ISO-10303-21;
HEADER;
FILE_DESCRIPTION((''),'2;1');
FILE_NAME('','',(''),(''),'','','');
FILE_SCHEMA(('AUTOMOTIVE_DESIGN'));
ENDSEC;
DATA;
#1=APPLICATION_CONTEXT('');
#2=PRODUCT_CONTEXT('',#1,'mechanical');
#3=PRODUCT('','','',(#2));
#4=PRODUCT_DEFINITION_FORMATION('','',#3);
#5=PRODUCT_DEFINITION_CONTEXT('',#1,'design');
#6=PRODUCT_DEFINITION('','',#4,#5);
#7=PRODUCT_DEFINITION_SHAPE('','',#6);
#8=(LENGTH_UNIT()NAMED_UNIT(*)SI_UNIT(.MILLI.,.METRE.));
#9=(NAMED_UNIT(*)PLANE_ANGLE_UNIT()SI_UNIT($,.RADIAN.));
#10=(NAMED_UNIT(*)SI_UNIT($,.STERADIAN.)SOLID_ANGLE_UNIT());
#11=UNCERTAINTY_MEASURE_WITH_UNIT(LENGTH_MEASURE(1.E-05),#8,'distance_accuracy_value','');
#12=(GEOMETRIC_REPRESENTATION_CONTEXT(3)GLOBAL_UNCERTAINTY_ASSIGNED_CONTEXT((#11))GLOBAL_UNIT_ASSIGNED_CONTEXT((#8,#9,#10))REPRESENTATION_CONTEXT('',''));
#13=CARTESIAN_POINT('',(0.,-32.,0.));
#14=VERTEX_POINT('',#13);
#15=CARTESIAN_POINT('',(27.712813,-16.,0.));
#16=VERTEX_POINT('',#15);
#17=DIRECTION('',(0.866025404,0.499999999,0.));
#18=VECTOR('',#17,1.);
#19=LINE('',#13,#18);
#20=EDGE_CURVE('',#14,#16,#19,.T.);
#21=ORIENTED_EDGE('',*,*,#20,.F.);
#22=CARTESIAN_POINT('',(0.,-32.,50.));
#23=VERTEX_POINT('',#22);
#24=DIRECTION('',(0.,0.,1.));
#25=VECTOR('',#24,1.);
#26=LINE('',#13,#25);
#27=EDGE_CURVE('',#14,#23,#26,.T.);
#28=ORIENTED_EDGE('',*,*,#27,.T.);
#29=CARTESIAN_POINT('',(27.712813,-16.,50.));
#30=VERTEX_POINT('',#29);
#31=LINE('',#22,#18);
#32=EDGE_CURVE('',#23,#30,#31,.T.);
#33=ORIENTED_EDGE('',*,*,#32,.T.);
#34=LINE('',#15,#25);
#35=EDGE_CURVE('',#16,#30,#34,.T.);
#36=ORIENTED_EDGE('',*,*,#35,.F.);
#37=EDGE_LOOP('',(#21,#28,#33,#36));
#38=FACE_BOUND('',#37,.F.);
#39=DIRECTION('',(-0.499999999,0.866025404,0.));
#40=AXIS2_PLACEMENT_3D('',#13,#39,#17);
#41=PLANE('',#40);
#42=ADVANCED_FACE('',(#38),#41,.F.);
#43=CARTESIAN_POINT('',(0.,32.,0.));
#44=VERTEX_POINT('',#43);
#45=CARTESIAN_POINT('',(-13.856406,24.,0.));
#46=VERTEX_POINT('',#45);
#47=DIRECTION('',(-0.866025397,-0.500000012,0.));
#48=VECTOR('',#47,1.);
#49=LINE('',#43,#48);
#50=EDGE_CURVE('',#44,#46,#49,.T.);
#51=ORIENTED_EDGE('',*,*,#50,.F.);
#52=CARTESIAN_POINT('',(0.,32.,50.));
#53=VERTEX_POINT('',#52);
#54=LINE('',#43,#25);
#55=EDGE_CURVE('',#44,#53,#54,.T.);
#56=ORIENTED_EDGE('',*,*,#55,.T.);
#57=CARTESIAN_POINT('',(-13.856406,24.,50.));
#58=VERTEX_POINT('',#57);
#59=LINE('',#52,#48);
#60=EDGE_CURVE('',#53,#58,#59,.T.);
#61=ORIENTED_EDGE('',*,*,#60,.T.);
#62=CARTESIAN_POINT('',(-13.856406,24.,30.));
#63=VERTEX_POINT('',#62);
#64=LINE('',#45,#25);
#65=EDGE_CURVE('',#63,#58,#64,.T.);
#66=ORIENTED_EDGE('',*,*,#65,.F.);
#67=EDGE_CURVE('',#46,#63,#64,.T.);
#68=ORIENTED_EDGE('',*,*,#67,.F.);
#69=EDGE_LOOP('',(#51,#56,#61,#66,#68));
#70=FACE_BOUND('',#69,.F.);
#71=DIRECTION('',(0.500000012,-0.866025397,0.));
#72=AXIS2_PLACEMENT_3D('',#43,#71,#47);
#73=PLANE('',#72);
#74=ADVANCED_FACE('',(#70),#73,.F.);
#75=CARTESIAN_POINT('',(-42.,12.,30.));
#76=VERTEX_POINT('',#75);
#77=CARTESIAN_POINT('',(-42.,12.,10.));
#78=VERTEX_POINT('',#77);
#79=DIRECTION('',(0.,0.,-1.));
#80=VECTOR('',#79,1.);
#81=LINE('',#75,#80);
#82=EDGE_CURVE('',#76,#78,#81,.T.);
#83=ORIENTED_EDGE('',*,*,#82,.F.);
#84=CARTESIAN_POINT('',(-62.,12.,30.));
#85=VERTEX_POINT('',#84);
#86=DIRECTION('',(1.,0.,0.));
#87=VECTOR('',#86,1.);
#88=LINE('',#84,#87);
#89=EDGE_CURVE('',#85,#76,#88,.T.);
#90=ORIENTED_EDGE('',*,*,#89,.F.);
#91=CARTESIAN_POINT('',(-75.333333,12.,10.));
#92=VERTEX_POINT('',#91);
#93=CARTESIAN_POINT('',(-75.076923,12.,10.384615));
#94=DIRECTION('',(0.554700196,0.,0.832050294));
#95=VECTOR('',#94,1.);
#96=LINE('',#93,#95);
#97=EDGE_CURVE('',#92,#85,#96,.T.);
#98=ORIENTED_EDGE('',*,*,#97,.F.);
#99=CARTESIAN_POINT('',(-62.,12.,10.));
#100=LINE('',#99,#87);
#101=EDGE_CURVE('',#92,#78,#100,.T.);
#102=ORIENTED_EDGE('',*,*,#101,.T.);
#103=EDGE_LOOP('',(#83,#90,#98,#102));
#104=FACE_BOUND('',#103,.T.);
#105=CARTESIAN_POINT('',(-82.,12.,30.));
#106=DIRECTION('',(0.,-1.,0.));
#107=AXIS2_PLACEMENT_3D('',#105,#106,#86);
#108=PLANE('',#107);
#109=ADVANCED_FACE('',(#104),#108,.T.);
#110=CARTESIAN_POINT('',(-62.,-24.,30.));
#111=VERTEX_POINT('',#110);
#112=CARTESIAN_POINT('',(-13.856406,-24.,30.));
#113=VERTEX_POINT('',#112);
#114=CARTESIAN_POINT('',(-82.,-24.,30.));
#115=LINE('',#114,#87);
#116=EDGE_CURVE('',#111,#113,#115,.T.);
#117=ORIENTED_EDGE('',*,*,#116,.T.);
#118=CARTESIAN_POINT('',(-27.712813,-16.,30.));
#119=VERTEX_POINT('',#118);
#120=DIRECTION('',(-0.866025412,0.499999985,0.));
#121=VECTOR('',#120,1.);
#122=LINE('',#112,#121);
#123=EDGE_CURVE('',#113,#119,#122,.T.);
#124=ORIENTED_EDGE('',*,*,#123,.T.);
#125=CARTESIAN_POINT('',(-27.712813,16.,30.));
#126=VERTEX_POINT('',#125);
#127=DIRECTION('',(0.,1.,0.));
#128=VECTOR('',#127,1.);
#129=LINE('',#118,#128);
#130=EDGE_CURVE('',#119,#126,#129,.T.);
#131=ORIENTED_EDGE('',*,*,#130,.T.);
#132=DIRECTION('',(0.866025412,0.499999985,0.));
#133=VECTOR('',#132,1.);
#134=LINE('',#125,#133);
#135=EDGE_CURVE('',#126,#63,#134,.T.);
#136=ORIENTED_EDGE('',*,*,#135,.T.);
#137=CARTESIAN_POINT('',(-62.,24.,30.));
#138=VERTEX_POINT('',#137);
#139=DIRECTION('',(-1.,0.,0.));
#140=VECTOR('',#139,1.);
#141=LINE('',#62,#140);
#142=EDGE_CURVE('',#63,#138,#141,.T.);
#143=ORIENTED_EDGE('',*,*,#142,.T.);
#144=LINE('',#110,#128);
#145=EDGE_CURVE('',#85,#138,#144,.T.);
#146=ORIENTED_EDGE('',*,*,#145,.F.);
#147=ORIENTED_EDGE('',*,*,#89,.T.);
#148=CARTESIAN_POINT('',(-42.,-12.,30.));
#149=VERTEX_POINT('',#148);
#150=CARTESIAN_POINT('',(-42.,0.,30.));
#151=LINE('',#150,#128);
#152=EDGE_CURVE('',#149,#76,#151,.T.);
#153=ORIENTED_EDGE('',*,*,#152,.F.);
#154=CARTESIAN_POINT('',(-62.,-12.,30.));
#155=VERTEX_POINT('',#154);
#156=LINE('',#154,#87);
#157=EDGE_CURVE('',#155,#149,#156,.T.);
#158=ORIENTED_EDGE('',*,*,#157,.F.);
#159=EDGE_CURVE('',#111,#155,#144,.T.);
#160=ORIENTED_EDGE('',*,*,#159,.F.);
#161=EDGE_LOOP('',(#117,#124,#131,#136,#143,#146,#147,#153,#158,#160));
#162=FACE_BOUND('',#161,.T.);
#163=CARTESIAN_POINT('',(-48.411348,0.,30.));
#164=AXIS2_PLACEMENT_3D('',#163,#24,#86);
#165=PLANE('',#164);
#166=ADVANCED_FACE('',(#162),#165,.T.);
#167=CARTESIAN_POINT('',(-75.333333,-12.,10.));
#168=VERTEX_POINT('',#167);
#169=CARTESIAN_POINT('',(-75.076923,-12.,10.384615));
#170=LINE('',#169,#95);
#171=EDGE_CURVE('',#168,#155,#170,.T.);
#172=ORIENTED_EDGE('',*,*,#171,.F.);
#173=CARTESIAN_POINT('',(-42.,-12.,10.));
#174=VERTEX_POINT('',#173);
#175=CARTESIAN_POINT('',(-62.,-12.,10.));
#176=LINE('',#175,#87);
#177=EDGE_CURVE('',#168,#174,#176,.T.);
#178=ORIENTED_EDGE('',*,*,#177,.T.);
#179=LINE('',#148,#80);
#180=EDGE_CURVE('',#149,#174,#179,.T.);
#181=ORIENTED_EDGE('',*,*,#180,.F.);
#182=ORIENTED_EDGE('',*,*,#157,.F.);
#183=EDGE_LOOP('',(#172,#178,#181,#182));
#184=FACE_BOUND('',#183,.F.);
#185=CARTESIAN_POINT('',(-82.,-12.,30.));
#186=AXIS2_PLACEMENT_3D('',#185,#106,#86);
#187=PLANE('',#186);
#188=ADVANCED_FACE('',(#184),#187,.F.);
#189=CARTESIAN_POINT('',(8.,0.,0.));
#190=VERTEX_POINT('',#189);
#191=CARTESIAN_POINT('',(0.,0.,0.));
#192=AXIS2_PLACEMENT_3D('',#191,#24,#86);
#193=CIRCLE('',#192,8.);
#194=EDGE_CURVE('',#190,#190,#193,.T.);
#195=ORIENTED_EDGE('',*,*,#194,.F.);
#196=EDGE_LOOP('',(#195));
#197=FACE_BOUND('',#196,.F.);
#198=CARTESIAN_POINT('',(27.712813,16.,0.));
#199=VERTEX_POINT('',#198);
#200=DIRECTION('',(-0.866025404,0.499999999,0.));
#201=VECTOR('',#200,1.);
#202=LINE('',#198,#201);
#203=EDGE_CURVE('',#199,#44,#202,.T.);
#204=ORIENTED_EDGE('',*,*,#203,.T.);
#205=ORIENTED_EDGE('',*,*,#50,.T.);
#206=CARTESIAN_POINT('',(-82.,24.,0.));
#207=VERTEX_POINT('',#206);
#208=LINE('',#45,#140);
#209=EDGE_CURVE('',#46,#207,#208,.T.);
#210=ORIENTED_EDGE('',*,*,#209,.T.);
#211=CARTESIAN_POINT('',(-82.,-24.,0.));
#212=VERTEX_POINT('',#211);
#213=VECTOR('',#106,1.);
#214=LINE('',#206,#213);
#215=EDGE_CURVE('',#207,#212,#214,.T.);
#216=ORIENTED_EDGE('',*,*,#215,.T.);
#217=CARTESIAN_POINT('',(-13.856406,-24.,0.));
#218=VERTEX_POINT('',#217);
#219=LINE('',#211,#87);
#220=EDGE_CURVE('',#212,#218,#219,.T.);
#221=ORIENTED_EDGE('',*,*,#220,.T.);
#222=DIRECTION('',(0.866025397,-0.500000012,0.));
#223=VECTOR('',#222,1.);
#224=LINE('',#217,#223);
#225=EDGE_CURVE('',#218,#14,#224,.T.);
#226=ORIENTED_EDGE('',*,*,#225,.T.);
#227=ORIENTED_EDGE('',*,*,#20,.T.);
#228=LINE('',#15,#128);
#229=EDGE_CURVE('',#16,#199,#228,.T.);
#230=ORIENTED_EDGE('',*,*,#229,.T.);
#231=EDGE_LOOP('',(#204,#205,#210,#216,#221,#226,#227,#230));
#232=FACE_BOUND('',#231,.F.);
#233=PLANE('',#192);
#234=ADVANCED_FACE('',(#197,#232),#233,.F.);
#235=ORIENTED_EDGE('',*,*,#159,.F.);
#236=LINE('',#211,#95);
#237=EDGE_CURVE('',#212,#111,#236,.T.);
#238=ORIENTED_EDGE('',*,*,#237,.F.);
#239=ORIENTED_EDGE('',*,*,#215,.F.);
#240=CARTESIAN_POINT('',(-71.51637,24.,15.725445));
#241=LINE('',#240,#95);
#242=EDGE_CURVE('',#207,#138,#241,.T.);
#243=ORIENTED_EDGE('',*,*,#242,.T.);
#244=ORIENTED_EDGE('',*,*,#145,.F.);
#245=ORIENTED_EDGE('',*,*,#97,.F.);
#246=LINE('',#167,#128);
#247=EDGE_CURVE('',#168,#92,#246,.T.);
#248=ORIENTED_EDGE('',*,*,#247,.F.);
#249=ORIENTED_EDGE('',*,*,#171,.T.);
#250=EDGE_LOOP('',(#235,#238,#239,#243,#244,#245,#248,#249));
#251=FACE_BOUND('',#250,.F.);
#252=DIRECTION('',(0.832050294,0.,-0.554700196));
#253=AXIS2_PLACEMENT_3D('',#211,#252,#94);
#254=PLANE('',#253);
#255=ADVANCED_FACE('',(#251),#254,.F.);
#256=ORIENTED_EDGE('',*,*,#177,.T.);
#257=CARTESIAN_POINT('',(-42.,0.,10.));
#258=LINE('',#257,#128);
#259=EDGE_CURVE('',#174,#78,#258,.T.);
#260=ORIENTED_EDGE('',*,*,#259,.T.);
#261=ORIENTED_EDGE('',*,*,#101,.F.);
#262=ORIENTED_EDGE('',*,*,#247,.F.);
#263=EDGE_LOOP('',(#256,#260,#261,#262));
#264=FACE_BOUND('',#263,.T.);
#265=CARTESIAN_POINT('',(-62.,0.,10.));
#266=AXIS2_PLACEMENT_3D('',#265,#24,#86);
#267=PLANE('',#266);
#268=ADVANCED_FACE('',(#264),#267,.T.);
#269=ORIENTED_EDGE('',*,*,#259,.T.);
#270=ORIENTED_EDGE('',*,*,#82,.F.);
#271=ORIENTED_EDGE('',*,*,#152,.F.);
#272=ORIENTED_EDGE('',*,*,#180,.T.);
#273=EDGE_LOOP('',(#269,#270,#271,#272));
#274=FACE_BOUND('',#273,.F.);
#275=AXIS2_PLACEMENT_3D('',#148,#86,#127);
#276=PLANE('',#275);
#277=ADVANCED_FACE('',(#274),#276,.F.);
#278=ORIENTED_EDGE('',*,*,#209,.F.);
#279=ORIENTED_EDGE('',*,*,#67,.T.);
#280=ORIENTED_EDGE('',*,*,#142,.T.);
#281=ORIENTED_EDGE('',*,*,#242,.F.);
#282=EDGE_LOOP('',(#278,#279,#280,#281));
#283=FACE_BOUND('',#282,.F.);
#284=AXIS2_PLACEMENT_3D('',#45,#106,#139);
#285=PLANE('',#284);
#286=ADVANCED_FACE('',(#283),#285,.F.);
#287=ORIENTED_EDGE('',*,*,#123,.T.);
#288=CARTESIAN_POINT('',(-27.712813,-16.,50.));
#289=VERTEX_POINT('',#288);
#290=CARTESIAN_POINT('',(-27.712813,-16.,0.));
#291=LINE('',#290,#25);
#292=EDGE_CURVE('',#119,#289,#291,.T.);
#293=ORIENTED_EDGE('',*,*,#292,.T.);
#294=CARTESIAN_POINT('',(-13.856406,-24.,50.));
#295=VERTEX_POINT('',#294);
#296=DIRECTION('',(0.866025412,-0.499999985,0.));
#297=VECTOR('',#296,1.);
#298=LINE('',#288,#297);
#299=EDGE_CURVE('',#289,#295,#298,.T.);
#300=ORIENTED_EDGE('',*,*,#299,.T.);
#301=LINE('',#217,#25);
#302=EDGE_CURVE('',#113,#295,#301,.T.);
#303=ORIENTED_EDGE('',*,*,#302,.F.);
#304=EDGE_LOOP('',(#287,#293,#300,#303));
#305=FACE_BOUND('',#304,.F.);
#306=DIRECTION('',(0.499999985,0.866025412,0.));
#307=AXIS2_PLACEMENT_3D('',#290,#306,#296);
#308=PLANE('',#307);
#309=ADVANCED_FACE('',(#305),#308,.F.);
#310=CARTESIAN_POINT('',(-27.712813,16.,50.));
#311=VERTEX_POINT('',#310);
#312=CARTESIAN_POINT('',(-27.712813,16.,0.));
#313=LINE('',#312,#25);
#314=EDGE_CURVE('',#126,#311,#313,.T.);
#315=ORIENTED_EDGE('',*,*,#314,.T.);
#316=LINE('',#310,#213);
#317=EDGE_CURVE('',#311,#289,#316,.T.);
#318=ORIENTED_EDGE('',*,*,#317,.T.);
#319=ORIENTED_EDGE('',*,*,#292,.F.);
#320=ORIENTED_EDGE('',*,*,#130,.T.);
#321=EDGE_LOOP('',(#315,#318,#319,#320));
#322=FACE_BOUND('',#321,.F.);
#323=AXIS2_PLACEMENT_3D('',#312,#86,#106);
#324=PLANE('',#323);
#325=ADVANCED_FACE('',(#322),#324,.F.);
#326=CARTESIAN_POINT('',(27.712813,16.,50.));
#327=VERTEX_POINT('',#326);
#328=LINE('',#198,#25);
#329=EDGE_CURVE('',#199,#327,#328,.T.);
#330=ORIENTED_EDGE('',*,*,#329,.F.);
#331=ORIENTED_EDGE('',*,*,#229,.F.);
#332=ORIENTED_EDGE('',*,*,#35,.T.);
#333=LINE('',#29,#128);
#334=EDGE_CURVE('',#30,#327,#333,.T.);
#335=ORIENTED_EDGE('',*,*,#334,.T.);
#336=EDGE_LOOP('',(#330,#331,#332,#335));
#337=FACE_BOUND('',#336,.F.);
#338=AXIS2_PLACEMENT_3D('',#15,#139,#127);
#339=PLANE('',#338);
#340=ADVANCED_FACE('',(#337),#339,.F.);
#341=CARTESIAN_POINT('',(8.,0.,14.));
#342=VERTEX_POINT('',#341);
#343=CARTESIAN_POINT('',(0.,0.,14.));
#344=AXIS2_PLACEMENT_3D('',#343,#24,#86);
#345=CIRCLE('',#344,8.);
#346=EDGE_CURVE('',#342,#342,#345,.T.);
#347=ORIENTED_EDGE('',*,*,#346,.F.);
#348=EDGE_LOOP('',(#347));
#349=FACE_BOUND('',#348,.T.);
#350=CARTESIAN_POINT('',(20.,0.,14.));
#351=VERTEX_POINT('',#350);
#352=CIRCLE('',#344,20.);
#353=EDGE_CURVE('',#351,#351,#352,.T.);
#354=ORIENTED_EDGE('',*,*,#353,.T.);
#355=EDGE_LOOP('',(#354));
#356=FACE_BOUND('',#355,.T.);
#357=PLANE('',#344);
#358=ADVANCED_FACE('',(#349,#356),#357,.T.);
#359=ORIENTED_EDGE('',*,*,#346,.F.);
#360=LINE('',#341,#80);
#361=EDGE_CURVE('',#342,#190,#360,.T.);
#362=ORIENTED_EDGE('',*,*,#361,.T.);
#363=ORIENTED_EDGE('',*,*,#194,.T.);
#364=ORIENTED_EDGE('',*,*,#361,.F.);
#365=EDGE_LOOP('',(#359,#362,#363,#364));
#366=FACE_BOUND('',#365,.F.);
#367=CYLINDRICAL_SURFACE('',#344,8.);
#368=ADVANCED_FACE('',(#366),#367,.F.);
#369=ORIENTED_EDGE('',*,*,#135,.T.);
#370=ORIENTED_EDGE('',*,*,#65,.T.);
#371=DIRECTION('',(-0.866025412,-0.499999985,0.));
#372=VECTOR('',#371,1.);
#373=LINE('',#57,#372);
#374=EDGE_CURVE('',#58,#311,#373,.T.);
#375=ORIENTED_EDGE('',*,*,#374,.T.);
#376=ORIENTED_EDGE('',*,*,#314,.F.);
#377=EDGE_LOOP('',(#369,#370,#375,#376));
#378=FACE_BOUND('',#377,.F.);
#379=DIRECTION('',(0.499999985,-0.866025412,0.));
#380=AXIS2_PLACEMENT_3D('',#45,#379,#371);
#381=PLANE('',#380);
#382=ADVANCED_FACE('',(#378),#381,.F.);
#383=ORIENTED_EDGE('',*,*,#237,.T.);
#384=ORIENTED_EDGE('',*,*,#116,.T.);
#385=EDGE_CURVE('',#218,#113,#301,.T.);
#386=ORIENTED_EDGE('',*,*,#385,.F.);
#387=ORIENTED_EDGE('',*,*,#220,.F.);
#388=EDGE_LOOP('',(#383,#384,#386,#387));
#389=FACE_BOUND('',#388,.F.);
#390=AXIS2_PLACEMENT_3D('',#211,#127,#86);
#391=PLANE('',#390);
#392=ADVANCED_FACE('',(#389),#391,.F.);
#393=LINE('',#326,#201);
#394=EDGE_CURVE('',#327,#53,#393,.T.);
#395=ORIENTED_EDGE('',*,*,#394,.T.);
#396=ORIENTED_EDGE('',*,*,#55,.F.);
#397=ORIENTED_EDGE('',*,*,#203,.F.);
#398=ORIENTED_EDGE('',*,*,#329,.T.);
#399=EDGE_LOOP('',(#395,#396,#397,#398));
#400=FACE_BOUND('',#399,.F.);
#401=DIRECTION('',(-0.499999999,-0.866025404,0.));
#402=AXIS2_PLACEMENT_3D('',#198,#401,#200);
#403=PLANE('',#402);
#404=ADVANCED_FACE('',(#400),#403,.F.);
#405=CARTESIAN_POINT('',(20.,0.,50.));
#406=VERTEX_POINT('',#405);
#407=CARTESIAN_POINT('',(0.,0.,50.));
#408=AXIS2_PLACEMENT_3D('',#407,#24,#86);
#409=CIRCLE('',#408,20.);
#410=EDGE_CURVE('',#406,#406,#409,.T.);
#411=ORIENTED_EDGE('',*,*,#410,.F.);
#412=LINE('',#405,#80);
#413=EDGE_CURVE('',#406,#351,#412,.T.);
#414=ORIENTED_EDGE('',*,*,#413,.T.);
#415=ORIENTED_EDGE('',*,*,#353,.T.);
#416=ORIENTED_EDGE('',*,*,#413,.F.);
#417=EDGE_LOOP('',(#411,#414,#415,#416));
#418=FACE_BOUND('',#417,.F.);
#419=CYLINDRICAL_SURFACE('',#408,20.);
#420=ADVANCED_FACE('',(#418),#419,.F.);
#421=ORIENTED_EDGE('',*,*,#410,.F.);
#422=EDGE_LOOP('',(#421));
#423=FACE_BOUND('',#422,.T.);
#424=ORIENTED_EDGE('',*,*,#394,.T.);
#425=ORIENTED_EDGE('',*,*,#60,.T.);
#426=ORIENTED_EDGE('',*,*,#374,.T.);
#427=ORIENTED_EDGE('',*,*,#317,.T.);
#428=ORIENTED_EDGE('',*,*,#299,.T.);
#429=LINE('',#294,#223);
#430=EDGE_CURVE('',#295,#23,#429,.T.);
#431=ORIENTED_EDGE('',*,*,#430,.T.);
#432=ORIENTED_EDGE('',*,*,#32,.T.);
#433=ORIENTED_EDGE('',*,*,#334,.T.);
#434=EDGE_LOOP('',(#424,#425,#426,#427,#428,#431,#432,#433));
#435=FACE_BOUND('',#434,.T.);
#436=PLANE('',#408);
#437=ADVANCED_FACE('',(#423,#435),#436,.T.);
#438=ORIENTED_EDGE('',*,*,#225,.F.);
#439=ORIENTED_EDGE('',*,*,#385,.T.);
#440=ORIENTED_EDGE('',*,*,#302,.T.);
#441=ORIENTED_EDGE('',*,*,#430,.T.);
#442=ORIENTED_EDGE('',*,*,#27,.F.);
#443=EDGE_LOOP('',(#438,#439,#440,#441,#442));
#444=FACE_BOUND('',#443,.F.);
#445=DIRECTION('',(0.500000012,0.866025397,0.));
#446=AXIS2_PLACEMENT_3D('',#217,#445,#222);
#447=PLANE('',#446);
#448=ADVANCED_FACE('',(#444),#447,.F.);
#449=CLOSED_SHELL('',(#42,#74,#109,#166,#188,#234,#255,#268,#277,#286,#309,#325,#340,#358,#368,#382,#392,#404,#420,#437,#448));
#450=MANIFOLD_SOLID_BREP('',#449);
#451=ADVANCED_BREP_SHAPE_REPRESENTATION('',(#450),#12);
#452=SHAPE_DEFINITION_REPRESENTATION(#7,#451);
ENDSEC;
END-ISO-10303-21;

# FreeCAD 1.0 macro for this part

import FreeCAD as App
import Part
import Sketcher

V = App.Vector
Q = App.Units.Quantity


def add_polygon(sketch, points):
    """Adds a closed chain of lines whose ends are joined by coincident constraints."""
    first, n = sketch.GeometryCount, len(points)
    for a, b in zip(points, points[1:] + points[:1]):
        sketch.addGeometry(Part.LineSegment(App.Vector(*a, 0), App.Vector(*b, 0)), False)
    for i in range(n):
        sketch.addConstraint(Sketcher.Constraint("Coincident", first + i, 2, first + (i + 1) % n, 1))

doc = App.newDocument("Part")
body = doc.addObject("PartDesign::Body", "Body")

sketch1 = body.newObject("Sketcher::SketchObject", "Sketch")
sketch1.AttachmentSupport = (doc.getObject("XY_Plane"), [""])
sketch1.MapMode = "FlatFace"
add_polygon(sketch1, [(-27.712813, 16), (-13.856406, 24), (-82, 24), (-82, -24), (-13.856406, -24), (-27.712813, -16)])
sketch1.addConstraint([
    Sketcher.Constraint("Horizontal", 1),
    Sketcher.Constraint("Vertical", 2),
    Sketcher.Constraint("Horizontal", 3),
    Sketcher.Constraint("Vertical", 5),
    Sketcher.Constraint("Symmetric", 0, 2, 3, 2, -1),
    Sketcher.Constraint("Equal", 0, 4),
    Sketcher.Constraint("DistanceY", 2, 2, 2, 1, 48.0),
    Sketcher.Constraint("DistanceY", 5, 1, 5, 2, 32.0),
    Sketcher.Constraint("Angle", 0, Q("29.999999 deg")),
    Sketcher.Constraint("DistanceX", 1, 2, -1, 1, 82.0),
    Sketcher.Constraint("DistanceX", 1, 2, 1, 1, 68.143594),
])
pad1 = body.newObject("PartDesign::Pad", "Pad")
pad1.Profile = sketch1
pad1.Length = 30

sketch2 = body.newObject("Sketcher::SketchObject", "Sketch001")
sketch2.AttachmentSupport = (doc.getObject("XY_Plane"), [""])
sketch2.MapMode = "FlatFace"
add_polygon(sketch2, [(27.712813, 16), (0, 32), (-13.856406, 24), (-27.712813, 16), (-27.712813, -16), (-13.856406, -24), (0, -32), (27.712813, -16)])
sketch2.addConstraint([
    Sketcher.Constraint("Vertical", 3),
    Sketcher.Constraint("Vertical", 7),
    Sketcher.Constraint("Symmetric", 0, 2, 5, 2, -1, 1),
    Sketcher.Constraint("Symmetric", 2, 2, 6, 2, -1, 1),
    Sketcher.Constraint("Symmetric", 1, 2, 4, 2, -1),
    Sketcher.Constraint("PointOnObject", 0, 2, -2),
    Sketcher.Constraint("Parallel", 1, 2),
    Sketcher.Constraint("Parallel", 0, 4),
    Sketcher.Constraint("Parallel", 4, 5),
    Sketcher.Constraint("Equal", 1, 2),
    Sketcher.Constraint("DistanceY", 3, 2, 3, 1, 32.0),
    Sketcher.Constraint("Angle", 0, Q("150 deg")),
    Sketcher.Constraint("Distance", 0, 32.0),
])
pad2 = body.newObject("PartDesign::Pad", "Pad001")
pad2.Profile = sketch2
pad2.Length = 50

sketch3 = body.newObject("Sketcher::SketchObject", "Sketch002")
sketch3.AttachmentSupport = (doc.getObject("XY_Plane"), [""])
sketch3.MapMode = "FlatFace"
sketch3.AttachmentOffset = App.Placement(V(0, 0, 50), App.Rotation())
sketch3.addGeometry(Part.Circle(V(0, 0, 0), V(0, 0, 1), 20), False)
sketch3.addConstraint([
    Sketcher.Constraint("Coincident", 0, 3, -1, 1),
    Sketcher.Constraint("Diameter", 0, 40.0),
])
pocket1 = body.newObject("PartDesign::Pocket", "Pocket")
pocket1.Profile = sketch3
pocket1.Length = 36

sketch4 = body.newObject("Sketcher::SketchObject", "Sketch003")
sketch4.AttachmentSupport = (doc.getObject("XY_Plane"), [""])
sketch4.MapMode = "FlatFace"
sketch4.AttachmentOffset = App.Placement(V(0, 0, 14), App.Rotation())
sketch4.addGeometry(Part.Circle(V(0, 0, 0), V(0, 0, 1), 8), False)
sketch4.addConstraint([
    Sketcher.Constraint("Coincident", 0, 3, -1, 1),
    Sketcher.Constraint("Diameter", 0, 16.0),
])
pocket2 = body.newObject("PartDesign::Pocket", "Pocket001")
pocket2.Profile = sketch4
pocket2.Type = "ThroughAll"

sketch5 = body.newObject("Sketcher::SketchObject", "Sketch004")
sketch5.AttachmentSupport = (doc.getObject("XY_Plane"), [""])
sketch5.MapMode = "FlatFace"
sketch5.AttachmentOffset = App.Placement(V(0, 0, 30), App.Rotation())
add_polygon(sketch5, [(-82, 12), (-82, -12), (-42, -12), (-42, 12)])
sketch5.addConstraint([
    Sketcher.Constraint("Vertical", 0),
    Sketcher.Constraint("Horizontal", 1),
    Sketcher.Constraint("Vertical", 2),
    Sketcher.Constraint("Horizontal", 3),
    Sketcher.Constraint("DistanceX", 1, 1, 1, 2, 40.0),
    Sketcher.Constraint("DistanceY", 0, 2, 0, 1, 24.0),
    Sketcher.Constraint("DistanceX", 0, 2, -1, 1, 82.0),
    Sketcher.Constraint("DistanceY", 0, 2, -1, 1, 12.0),
])
pocket3 = body.newObject("PartDesign::Pocket", "Pocket002")
pocket3.Profile = sketch5
pocket3.Length = 20

sketch6 = body.newObject("Sketcher::SketchObject", "Sketch005")
sketch6.AttachmentSupport = (doc.getObject("XZ_Plane"), [""])
sketch6.MapMode = "FlatFace"
sketch6.AttachmentOffset = App.Placement(V(0, 0, 24), App.Rotation())
add_polygon(sketch6, [(-82, 30), (-82, 0), (-62, 30)])
sketch6.addConstraint([
    Sketcher.Constraint("Vertical", 0),
    Sketcher.Constraint("Horizontal", 2),
    Sketcher.Constraint("PointOnObject", 0, 2, -1),
    Sketcher.Constraint("DistanceX", 2, 2, 2, 1, 20.0),
    Sketcher.Constraint("DistanceY", 0, 2, 0, 1, 30.0),
    Sketcher.Constraint("DistanceX", 0, 2, -1, 1, 82.0),
])
pocket4 = body.newObject("PartDesign::Pocket", "Pocket003")
pocket4.Profile = sketch6
pocket4.Type = "ThroughAll"

doc.recompute()
